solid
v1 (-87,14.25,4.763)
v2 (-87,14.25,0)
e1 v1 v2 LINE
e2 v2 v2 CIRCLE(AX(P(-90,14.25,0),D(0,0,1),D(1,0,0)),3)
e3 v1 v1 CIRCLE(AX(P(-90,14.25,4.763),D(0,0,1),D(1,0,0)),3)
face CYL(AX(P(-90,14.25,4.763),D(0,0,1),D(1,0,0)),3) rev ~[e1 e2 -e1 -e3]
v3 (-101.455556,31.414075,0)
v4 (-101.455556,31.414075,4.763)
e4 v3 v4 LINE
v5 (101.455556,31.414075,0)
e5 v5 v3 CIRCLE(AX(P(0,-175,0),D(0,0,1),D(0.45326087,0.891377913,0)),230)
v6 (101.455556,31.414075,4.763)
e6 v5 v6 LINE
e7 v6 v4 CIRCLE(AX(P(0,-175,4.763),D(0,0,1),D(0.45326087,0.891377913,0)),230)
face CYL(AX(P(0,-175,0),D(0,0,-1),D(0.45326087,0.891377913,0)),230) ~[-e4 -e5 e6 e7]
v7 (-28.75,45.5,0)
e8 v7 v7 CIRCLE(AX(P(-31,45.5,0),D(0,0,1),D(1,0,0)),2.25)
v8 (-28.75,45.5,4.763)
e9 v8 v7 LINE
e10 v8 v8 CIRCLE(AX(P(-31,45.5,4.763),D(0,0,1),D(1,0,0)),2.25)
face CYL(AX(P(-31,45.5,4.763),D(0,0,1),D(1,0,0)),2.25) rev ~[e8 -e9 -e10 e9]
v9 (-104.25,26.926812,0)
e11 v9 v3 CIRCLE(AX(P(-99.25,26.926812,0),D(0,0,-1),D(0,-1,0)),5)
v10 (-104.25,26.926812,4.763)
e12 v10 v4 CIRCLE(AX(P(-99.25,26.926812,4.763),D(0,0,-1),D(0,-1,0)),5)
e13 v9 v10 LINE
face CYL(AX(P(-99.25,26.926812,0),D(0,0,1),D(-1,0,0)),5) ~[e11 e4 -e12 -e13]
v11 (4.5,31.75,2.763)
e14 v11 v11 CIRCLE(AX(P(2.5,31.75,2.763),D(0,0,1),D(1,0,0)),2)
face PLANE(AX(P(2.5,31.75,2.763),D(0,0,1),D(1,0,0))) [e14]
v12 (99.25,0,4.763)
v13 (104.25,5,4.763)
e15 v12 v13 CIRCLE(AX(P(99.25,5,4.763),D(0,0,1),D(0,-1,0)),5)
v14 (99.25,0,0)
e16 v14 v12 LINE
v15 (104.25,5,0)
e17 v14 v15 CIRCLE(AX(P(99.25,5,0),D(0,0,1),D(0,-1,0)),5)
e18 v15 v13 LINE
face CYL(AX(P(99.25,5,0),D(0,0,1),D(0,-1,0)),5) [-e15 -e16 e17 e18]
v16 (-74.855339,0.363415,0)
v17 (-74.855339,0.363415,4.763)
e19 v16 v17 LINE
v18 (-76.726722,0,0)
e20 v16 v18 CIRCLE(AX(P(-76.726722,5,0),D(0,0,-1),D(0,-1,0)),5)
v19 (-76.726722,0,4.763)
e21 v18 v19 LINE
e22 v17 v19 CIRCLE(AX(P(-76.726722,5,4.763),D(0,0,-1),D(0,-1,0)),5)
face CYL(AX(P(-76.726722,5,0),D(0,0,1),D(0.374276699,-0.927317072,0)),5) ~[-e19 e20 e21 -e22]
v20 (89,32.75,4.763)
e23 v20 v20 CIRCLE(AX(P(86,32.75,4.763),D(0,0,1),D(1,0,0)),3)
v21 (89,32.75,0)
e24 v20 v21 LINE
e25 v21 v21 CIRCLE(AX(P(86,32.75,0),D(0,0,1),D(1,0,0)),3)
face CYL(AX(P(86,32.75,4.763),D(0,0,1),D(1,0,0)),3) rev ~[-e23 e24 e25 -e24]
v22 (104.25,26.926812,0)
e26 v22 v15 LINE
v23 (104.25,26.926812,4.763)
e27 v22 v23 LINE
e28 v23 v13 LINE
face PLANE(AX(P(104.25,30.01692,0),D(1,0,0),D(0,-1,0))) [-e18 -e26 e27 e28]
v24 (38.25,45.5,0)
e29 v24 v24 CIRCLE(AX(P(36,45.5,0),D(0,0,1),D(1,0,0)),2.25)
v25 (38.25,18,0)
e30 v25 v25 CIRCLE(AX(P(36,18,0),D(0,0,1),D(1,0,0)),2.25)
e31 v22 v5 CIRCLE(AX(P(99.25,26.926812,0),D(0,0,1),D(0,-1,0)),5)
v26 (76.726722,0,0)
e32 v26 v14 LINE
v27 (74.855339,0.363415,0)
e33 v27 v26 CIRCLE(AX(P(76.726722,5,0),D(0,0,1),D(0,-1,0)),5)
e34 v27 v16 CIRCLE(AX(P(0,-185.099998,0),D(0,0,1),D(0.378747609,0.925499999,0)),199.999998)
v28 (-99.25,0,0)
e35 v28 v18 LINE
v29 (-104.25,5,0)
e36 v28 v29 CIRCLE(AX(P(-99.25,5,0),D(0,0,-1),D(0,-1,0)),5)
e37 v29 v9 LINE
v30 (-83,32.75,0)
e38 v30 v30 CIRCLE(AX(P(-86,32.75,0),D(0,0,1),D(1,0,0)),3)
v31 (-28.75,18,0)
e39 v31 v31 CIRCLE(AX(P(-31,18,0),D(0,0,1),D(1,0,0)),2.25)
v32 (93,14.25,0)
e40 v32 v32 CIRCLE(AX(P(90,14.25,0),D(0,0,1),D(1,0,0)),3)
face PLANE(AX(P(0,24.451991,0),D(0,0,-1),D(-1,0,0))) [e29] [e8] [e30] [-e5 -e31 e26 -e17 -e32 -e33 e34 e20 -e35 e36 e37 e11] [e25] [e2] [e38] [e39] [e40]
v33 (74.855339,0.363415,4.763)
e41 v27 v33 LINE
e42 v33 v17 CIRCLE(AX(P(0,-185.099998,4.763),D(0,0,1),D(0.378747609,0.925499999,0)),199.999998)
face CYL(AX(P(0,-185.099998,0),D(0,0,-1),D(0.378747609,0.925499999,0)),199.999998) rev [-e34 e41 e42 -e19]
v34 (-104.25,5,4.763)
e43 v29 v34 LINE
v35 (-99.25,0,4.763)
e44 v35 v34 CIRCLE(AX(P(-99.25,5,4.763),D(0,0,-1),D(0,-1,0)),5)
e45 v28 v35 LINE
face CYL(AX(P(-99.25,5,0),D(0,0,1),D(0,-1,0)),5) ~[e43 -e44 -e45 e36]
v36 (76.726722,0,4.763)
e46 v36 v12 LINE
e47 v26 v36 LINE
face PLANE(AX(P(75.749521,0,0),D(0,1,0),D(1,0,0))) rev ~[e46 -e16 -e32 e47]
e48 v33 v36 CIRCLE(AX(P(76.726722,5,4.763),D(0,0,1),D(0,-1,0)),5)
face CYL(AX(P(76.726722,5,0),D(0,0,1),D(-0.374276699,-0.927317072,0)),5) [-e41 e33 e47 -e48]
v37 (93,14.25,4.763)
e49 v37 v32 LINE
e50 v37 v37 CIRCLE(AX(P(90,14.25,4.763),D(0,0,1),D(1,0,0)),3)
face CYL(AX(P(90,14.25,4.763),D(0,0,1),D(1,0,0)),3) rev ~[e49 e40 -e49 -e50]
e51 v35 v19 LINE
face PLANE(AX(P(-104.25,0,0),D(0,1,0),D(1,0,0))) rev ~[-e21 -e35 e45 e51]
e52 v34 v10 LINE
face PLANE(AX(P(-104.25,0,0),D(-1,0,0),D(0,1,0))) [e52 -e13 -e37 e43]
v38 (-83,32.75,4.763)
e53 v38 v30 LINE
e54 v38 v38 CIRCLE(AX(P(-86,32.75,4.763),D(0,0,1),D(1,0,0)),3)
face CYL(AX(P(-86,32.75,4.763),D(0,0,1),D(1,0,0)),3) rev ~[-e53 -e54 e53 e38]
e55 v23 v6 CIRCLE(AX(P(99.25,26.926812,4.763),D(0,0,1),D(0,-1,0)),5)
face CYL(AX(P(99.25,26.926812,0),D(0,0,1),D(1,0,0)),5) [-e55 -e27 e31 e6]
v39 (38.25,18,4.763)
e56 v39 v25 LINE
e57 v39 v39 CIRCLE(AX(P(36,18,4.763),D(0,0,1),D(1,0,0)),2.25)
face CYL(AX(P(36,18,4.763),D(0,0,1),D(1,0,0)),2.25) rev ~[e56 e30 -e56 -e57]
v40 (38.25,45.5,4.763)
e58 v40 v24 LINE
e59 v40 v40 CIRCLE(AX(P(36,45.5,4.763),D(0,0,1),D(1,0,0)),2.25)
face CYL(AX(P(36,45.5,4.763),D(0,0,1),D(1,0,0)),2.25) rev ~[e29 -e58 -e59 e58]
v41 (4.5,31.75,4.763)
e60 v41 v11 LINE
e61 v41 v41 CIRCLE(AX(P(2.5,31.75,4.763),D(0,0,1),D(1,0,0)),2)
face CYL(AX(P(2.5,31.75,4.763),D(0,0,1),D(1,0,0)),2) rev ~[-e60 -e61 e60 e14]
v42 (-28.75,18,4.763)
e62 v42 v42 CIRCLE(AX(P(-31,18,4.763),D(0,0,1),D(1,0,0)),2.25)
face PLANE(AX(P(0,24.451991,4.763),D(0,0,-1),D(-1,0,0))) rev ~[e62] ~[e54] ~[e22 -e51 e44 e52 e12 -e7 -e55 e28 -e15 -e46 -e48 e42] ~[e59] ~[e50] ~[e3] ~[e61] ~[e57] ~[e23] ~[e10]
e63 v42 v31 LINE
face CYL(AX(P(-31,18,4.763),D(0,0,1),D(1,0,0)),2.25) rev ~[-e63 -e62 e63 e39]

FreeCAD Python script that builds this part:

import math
import FreeCAD as App
import Part
import Sketcher
from FreeCAD import Vector
Q = App.Units.Quantity


def edges_at(feature, points):
    """Names of the edges that pass closest to the given points."""
    edges = feature.Shape.Edges
    near = lambda p: min(range(len(edges)), key=lambda i: edges[i].distToShape(Part.Vertex(*p))[0])
    return sorted({f"Edge{near(p) + 1}" for p in points})

doc = App.newDocument("Part")
body = doc.addObject("PartDesign::Body", "Body")

sketch1 = body.newObject("Sketcher::SketchObject", "Sketch")
sketch1.AttachmentSupport = (doc.getObject("XY_Plane"), [""])
sketch1.MapMode = "FlatFace"
sketch1.addGeometry([
    Part.ArcOfCircle(Part.Circle(Vector(0, -185, 0), Vector(0, 0, 1), 200), math.radians(68), math.radians(112)),
    Part.LineSegment(Vector(76, 0, 0), Vector(104, 0, 0)),
    Part.LineSegment(Vector(104, 0, 0), Vector(104, 30, 0)),
    Part.ArcOfCircle(Part.Circle(Vector(0, -175, 0), Vector(0, 0, 1), 230), math.radians(63), math.radians(117)),
    Part.LineSegment(Vector(-104, 30, 0), Vector(-104, 0, 0)),
    Part.LineSegment(Vector(-104, 0, 0), Vector(-76, 0, 0)),
], False)
sketch1.addConstraint([
    Sketcher.Constraint("Coincident", 0, 1, 1, 1),
    Sketcher.Constraint("Coincident", 1, 2, 2, 1),
    Sketcher.Constraint("Coincident", 2, 2, 3, 1),
    Sketcher.Constraint("Coincident", 3, 2, 4, 1),
    Sketcher.Constraint("Coincident", 4, 2, 5, 1),
    Sketcher.Constraint("Coincident", 5, 2, 0, 2),
    Sketcher.Constraint("Horizontal", 1),
    Sketcher.Constraint("Vertical", 2),
    Sketcher.Constraint("Vertical", 4),
    Sketcher.Constraint("Horizontal", 5),
    Sketcher.Constraint("Symmetric", 1, 2, 4, 2, -1, 1),
    Sketcher.Constraint("Symmetric", 0, 1, 5, 2, -2),
    Sketcher.Constraint("PointOnObject", 3, 3, -2),
    Sketcher.Constraint("Radius", 3, Q("230 mm")),
    Sketcher.Constraint("DistanceY", 3, 3, -1, 1, Q("175 mm")),
    Sketcher.Constraint("DistanceX", 3, 2, 2, 2, Q("208.5 mm")),
    Sketcher.Constraint("Radius", 0, Q("199.999998 mm")),
    Sketcher.Constraint("DistanceX", 1, 1, 1, 2, Q("28.500479 mm")),
])
pad1 = body.newObject("PartDesign::Pad", "Pad")
pad1.Profile = sketch1
pad1.Length = 4.763

sketch2 = body.newObject("Sketcher::SketchObject", "Sketch001")
sketch2.AttachmentSupport = (doc.getObject("XY_Plane"), [""])
sketch2.MapMode = "FlatFace"
sketch2.AttachmentOffset = App.Placement(Vector(0, 0, 4.763), App.Rotation())
sketch2.addGeometry([
    Part.Circle(Vector(-31, 45.5, 0), Vector(0, 0, 1), 2.2),
    Part.Circle(Vector(36, 45.5, 0), Vector(0, 0, 1), 2.2),
    Part.Circle(Vector(36, 18, 0), Vector(0, 0, 1), 2.2),
    Part.Circle(Vector(-31, 18, 0), Vector(0, 0, 1), 2.2),
    Part.Circle(Vector(-90, 14.2, 0), Vector(0, 0, 1), 3),
    Part.Circle(Vector(-86, 32.8, 0), Vector(0, 0, 1), 3),
    Part.Circle(Vector(86, 32.8, 0), Vector(0, 0, 1), 3),
    Part.Circle(Vector(90, 14.2, 0), Vector(0, 0, 1), 3),
], False)
sketch2.addConstraint([
    Sketcher.Constraint("Equal", 0, 1),
    Sketcher.Constraint("Equal", 1, 2),
    Sketcher.Constraint("Equal", 2, 3),
    Sketcher.Constraint("Equal", 4, 5),
    Sketcher.Constraint("Equal", 5, 6),
    Sketcher.Constraint("Equal", 6, 7),
    Sketcher.Constraint("Symmetric", 5, 3, 6, 3, -2),
    Sketcher.Constraint("Symmetric", 4, 3, 7, 3, -2),
    Sketcher.Constraint("Horizontal", 0, 3, 1, 3),
    Sketcher.Constraint("Horizontal", 2, 3, 3, 3),
    Sketcher.Constraint("Vertical", 1, 3, 2, 3),
    Sketcher.Constraint("Vertical", 0, 3, 3, 3),
    Sketcher.Constraint("Diameter", 4, Q("6 mm")),
    Sketcher.Constraint("Diameter", 0, Q("4.5 mm")),
    Sketcher.Constraint("DistanceX", 0, 3, -1, 1, Q("31 mm")),
    Sketcher.Constraint("DistanceX", -1, 1, 1, 3, Q("36 mm")),
    Sketcher.Constraint("DistanceY", -1, 1, 2, 3, Q("18 mm")),
    Sketcher.Constraint("DistanceX", 4, 3, -1, 1, Q("90 mm")),
    Sketcher.Constraint("DistanceX", 5, 3, -1, 1, Q("86 mm")),
    Sketcher.Constraint("DistanceY", -1, 1, 0, 3, Q("45.5 mm")),
    Sketcher.Constraint("DistanceY", 4, 3, 5, 3, Q("18.5 mm")),
    Sketcher.Constraint("DistanceY", -1, 1, 4, 3, Q("14.25 mm")),
])
pocket1 = body.newObject("PartDesign::Pocket", "Pocket")
pocket1.Profile = sketch2
pocket1.Type = "ThroughAll"
doc.recompute()

fillet = body.newObject("PartDesign::Fillet", "Fillet")
fillet.Base = (pocket1, edges_at(pocket1, [
    (-104.25, 30.017, 2.381),
    (-104.25, 0, 2.381),
    (104.25, 30.017, 2.381),
    (-75.75, 0, 2.381),
    (75.75, 0, 2.381),
    (104.25, 0, 2.381),
]))
fillet.Radius = 5

sketch3 = body.newObject("Sketcher::SketchObject", "Sketch002")
sketch3.AttachmentSupport = (doc.getObject("XY_Plane"), [""])
sketch3.MapMode = "FlatFace"
sketch3.AttachmentOffset = App.Placement(Vector(0, 0, 4.763), App.Rotation())
sketch3.addGeometry(Part.Circle(Vector(2.5, 31.8, 0), Vector(0, 0, 1), 2), False)
sketch3.addConstraint([
    Sketcher.Constraint("Diameter", 0, Q("4 mm")),
    Sketcher.Constraint("DistanceX", -1, 1, 0, 3, Q("2.5 mm")),
    Sketcher.Constraint("DistanceY", -1, 1, 0, 3, Q("31.75 mm")),
])
pocket2 = body.newObject("PartDesign::Pocket", "Pocket001")
pocket2.Profile = sketch3
pocket2.Length = 2

doc.recompute()
